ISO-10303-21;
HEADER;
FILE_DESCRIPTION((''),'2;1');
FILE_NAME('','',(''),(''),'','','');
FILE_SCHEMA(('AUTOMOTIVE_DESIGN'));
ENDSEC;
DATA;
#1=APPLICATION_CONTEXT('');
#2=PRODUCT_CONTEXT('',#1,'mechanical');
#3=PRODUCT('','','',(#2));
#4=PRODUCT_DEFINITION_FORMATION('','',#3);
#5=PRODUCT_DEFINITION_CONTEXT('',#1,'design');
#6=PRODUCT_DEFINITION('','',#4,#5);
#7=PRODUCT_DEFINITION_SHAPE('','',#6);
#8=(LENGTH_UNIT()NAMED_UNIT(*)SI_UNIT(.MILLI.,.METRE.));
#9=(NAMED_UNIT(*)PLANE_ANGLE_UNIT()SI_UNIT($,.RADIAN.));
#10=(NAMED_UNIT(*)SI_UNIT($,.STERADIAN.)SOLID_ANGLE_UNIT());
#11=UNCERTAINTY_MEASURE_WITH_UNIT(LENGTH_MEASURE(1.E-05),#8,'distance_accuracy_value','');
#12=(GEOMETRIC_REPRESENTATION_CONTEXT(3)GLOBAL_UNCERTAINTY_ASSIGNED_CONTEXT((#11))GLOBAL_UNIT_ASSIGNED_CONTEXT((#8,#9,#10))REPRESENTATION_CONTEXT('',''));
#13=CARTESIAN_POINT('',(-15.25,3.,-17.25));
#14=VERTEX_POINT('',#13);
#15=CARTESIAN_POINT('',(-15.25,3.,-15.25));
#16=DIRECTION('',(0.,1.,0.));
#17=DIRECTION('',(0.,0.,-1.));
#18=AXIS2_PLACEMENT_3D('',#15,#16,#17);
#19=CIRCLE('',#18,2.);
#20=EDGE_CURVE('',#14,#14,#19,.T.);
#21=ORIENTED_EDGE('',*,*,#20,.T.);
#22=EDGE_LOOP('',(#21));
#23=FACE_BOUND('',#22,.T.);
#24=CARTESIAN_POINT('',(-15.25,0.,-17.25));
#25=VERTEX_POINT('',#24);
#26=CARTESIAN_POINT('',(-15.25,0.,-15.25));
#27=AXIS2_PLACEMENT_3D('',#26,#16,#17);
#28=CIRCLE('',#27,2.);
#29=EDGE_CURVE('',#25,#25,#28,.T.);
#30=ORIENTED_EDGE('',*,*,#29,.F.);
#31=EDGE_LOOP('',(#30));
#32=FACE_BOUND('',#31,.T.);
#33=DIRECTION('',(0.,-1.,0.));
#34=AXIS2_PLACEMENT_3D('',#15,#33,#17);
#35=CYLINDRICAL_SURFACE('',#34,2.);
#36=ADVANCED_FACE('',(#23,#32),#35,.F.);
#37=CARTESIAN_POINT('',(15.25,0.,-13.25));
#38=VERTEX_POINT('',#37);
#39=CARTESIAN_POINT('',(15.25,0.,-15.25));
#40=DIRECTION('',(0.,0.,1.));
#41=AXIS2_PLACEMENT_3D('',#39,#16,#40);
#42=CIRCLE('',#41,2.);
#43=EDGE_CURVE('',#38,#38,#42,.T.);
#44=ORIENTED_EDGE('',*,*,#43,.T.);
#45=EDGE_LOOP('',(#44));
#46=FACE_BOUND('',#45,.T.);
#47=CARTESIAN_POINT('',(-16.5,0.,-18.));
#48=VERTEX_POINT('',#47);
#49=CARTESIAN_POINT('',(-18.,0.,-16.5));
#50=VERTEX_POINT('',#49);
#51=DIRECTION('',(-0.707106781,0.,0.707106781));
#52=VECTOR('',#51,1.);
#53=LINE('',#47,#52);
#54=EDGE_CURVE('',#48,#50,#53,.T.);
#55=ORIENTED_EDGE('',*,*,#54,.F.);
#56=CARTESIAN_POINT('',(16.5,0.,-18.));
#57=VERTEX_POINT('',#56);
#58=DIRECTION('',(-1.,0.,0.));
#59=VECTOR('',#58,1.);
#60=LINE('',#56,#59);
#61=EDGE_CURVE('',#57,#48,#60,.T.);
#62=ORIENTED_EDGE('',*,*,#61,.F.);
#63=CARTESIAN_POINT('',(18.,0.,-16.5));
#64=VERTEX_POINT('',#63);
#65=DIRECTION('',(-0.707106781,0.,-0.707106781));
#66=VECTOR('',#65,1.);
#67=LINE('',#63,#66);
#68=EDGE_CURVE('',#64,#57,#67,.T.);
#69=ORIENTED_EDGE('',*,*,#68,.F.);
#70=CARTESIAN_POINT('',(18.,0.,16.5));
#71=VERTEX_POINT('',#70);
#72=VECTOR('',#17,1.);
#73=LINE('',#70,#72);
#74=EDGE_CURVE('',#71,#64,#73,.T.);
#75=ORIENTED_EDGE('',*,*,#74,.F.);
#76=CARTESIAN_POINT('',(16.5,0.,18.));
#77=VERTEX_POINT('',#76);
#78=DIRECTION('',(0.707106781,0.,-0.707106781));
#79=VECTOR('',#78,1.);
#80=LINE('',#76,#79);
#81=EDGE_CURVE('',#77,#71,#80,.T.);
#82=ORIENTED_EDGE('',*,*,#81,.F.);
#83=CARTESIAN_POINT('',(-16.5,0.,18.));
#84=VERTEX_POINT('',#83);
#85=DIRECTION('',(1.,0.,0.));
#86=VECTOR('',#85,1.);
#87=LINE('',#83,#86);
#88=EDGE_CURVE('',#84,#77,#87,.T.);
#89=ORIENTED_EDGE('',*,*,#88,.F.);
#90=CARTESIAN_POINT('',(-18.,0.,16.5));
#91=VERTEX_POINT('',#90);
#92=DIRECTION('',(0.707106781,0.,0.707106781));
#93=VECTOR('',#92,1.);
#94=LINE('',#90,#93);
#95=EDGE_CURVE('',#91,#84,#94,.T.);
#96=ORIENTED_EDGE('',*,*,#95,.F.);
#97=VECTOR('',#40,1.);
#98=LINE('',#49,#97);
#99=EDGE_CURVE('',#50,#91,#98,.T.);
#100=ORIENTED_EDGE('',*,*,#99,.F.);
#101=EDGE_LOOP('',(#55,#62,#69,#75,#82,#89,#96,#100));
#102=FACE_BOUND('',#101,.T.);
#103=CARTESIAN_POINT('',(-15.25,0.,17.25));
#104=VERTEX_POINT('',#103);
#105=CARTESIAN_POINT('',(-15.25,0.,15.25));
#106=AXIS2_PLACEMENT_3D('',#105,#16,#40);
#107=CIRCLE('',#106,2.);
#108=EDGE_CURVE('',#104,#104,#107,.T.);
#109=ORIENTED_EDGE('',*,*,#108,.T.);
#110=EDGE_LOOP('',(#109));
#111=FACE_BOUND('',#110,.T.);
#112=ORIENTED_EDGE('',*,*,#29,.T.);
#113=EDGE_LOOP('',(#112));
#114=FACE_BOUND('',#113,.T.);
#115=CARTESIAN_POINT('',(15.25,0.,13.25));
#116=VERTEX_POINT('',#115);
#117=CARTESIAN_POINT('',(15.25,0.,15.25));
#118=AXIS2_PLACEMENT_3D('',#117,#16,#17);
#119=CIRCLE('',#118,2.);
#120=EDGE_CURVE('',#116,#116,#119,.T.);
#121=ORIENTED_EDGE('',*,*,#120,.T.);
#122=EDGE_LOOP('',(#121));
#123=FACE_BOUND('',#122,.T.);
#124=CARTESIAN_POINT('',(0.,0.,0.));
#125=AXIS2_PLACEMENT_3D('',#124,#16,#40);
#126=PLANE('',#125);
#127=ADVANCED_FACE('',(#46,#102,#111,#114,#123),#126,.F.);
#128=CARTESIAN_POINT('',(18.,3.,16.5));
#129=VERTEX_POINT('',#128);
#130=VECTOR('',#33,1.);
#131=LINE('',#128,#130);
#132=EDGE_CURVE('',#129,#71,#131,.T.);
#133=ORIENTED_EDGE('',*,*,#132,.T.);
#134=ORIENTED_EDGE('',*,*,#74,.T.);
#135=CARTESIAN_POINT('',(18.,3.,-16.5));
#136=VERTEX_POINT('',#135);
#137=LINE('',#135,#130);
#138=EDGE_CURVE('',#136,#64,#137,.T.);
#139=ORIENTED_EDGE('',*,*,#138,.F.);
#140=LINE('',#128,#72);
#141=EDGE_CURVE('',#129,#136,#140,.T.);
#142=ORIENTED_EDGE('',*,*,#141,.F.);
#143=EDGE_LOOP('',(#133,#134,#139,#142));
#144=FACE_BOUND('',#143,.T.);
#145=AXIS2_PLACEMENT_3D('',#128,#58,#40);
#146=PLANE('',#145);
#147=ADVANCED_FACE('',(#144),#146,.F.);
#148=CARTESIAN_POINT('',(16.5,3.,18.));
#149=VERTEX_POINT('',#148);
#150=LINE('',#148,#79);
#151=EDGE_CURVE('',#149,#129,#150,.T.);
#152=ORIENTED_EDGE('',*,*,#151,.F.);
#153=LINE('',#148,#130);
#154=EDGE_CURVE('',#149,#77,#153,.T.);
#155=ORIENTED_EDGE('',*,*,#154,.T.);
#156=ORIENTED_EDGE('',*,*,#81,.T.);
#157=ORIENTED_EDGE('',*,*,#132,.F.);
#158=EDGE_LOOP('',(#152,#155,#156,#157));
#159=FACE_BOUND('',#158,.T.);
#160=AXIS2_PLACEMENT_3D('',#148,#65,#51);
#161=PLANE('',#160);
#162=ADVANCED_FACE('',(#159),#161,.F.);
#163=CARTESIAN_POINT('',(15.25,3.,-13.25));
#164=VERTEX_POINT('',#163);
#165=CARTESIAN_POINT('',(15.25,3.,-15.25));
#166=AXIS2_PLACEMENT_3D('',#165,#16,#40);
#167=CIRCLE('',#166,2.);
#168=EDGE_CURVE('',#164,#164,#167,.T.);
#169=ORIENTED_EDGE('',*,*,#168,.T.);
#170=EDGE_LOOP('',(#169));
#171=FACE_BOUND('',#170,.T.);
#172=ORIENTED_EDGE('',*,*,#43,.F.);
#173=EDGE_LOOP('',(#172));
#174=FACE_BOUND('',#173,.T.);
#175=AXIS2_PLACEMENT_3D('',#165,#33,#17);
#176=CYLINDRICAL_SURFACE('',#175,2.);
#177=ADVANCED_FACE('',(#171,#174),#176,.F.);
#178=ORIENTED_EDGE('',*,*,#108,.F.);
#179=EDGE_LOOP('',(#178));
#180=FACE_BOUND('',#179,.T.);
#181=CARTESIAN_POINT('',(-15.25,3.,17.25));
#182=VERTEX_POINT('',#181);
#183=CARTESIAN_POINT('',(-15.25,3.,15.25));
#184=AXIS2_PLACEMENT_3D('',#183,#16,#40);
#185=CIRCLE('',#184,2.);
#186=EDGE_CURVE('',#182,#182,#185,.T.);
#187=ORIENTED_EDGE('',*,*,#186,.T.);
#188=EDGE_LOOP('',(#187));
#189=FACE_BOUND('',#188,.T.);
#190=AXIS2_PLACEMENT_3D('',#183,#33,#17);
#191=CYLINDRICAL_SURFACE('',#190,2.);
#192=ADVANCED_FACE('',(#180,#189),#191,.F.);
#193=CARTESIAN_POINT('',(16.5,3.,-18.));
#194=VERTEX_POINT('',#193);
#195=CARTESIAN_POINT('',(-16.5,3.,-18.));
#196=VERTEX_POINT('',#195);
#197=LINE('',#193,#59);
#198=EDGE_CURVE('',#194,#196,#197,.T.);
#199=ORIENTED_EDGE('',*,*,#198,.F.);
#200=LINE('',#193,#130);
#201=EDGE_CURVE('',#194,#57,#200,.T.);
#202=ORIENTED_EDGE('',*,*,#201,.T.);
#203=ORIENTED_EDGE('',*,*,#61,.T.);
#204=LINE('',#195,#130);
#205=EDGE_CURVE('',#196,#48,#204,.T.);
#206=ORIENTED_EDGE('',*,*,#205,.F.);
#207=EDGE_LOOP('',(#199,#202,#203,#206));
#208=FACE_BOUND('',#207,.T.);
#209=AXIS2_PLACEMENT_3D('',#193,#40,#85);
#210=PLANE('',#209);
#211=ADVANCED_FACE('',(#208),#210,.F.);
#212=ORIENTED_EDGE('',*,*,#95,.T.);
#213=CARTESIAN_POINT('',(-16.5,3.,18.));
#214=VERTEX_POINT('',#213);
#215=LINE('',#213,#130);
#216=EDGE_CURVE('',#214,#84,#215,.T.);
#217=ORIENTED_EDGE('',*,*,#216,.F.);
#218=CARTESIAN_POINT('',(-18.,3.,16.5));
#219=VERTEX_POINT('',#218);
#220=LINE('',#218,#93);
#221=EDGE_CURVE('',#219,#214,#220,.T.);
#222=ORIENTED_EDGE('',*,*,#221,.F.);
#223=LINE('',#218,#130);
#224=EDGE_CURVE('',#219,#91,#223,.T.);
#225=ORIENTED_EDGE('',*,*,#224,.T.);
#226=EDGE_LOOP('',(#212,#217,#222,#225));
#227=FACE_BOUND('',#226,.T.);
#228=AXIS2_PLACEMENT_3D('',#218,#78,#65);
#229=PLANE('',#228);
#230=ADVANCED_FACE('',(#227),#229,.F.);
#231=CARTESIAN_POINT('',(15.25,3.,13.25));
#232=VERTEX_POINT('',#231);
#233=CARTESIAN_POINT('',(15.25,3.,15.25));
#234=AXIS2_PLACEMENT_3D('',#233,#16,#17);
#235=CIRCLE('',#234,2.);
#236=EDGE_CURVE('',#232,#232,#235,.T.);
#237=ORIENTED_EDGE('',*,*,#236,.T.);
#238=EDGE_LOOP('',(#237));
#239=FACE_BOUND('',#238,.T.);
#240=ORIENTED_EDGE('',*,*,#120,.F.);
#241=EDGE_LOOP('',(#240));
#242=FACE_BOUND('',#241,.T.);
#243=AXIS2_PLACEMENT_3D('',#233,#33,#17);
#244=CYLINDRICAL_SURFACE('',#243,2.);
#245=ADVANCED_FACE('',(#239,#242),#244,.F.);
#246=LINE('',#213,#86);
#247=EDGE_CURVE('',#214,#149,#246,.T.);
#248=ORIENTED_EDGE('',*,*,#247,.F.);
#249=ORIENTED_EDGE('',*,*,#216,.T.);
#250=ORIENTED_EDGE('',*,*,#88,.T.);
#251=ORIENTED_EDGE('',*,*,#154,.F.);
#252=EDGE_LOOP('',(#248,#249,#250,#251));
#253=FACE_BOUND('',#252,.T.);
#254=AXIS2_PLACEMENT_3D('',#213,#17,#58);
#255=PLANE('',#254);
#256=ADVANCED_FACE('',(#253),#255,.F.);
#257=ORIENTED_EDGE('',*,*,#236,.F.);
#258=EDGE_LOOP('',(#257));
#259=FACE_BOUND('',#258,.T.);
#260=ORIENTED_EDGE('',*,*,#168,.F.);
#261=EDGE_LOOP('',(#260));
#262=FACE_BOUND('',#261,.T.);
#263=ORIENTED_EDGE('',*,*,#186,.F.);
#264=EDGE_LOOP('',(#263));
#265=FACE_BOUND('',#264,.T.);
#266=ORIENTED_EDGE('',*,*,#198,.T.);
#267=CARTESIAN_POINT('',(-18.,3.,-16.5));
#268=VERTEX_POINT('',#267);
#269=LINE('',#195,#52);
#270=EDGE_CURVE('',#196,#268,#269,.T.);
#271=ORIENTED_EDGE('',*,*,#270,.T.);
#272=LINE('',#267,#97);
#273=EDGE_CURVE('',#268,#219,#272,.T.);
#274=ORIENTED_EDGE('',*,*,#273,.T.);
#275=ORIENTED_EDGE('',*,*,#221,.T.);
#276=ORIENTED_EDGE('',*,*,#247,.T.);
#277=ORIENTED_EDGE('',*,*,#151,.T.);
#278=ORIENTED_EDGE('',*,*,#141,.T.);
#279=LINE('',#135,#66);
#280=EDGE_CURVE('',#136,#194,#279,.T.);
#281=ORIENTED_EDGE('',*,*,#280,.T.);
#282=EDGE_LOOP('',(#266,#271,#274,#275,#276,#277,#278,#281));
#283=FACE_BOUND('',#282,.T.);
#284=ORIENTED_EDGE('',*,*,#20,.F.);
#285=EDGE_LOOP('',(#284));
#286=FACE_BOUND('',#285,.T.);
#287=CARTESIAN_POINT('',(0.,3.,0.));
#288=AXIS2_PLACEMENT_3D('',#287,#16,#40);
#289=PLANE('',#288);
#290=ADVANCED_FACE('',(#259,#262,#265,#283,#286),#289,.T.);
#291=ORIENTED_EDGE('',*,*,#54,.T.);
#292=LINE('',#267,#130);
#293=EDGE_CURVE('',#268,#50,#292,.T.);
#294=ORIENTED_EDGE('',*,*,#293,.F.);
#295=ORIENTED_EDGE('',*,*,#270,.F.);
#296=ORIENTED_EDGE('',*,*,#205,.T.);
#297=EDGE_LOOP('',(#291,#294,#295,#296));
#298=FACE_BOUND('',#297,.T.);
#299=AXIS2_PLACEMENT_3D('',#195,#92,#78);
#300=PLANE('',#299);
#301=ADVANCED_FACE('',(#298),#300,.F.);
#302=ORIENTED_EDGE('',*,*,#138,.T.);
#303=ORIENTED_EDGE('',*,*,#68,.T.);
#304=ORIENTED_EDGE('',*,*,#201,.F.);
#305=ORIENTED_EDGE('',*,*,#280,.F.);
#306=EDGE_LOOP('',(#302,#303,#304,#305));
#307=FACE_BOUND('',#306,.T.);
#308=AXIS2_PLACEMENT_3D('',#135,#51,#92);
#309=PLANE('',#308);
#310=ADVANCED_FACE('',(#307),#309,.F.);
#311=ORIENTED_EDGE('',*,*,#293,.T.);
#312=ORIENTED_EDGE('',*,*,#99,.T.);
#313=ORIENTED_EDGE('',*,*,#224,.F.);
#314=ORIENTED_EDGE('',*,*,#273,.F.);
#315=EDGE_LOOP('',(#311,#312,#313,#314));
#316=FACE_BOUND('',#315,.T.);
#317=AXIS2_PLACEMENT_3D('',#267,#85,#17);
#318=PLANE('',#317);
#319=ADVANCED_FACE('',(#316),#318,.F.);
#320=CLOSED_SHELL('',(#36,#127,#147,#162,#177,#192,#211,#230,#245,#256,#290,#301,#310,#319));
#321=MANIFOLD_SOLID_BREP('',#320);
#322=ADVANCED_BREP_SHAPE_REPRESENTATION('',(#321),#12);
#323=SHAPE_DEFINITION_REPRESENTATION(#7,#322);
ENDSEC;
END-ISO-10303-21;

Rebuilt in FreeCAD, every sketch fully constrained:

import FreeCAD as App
import Part
import Sketcher
Q = App.Units.Quantity

doc = App.newDocument("Part")
params = doc.addObject("Spreadsheet::Sheet", "Params")
for row, (alias, value) in enumerate([
    ("sketch1_diameter", "4 mm"),
    ("sketch1_width", "33 mm"),
    ("pad1_length", "3 mm"),
], start=1):
    params.set(f"A{row}", alias)
    params.set(f"B{row}", "=" + value)
    params.setAlias(f"B{row}", alias)

body = doc.addObject("PartDesign::Body", "Body")

# Sketch on XZ plane
sketch1 = body.newObject("Sketcher::SketchObject", "Sketch")
sketch1.AttachmentSupport = (doc.getObject("XZ_Plane"), [""])
sketch1.MapMode = "FlatFace"
sketch1.addGeometry([
    Part.LineSegment(App.Vector(-16.5, 18, 0), App.Vector(16.5, 18, 0)),  # 0
    Part.LineSegment(App.Vector(16.5, 18, 0), App.Vector(18, 16.5, 0)),  # 1
    Part.LineSegment(App.Vector(18, 16.5, 0), App.Vector(18, -16.5, 0)),  # 2
    Part.LineSegment(App.Vector(18, -16.5, 0), App.Vector(16.5, -18, 0)),  # 3
    Part.LineSegment(App.Vector(16.5, -18, 0), App.Vector(-16.5, -18, 0)),  # 4
    Part.LineSegment(App.Vector(-16.5, -18, 0), App.Vector(-18, -16.5, 0)),  # 5
    Part.LineSegment(App.Vector(-18, -16.5, 0), App.Vector(-18, 16.5, 0)),  # 6
    Part.LineSegment(App.Vector(-18, 16.5, 0), App.Vector(-16.5, 18, 0)),  # 7
    Part.Circle(App.Vector(-15.2, 15.2, 0), App.Vector(0, 0, 1), 2),  # 8
    Part.Circle(App.Vector(15.2, 15.2, 0), App.Vector(0, 0, 1), 2),  # 9
    Part.Circle(App.Vector(-15.2, -15.2, 0), App.Vector(0, 0, 1), 2),  # 10
    Part.Circle(App.Vector(15.2, -15.2, 0), App.Vector(0, 0, 1), 2),  # 11
], False)
sketch1.addConstraint([
    Sketcher.Constraint("Coincident", 0, 2, 1, 1),
    Sketcher.Constraint("Coincident", 1, 2, 2, 1),
    Sketcher.Constraint("Coincident", 2, 2, 3, 1),
    Sketcher.Constraint("Coincident", 3, 2, 4, 1),
    Sketcher.Constraint("Coincident", 4, 2, 5, 1),
    Sketcher.Constraint("Coincident", 5, 2, 6, 1),
    Sketcher.Constraint("Coincident", 6, 2, 7, 1),
    Sketcher.Constraint("Coincident", 7, 2, 0, 1),
    Sketcher.Constraint("Horizontal", 0),
    Sketcher.Constraint("Vertical", 2),
    Sketcher.Constraint("Horizontal", 4),
    Sketcher.Constraint("Vertical", 6),
    Sketcher.Constraint("Equal", 8, 9),
    Sketcher.Constraint("Equal", 9, 10),
    Sketcher.Constraint("Equal", 10, 11),
    Sketcher.Constraint("Symmetric", 9, 3, 10, 3, -1, 1),
    Sketcher.Constraint("Symmetric", 8, 3, 11, 3, -1, 1),
    Sketcher.Constraint("Symmetric", 0, 2, 4, 2, -1, 1),
    Sketcher.Constraint("Symmetric", 1, 2, 5, 2, -1, 1),
    Sketcher.Constraint("Symmetric", 8, 3, 9, 3, -2),
    Sketcher.Constraint("Perpendicular", 1, 3),
    Sketcher.Constraint("Perpendicular", 5, 7),
    Sketcher.Constraint("Horizontal", 2, 2, 5, 2),
    Sketcher.Constraint("Horizontal", 1, 2, 6, 2),
    Sketcher.Constraint("Vertical", 0, 2, 3, 2),
    Sketcher.Constraint("Equal", 4, 2),
    Sketcher.Constraint("Diameter", 8, Q("4 mm")),
    Sketcher.Constraint("DistanceX", 0, 1, 0, 2, Q("33 mm")),
    Sketcher.Constraint("DistanceY", -1, 1, 0, 2, Q("18 mm")),
    Sketcher.Constraint("DistanceX", 8, 3, 9, 3, Q("30.5 mm")),
    Sketcher.Constraint("DistanceY", 10, 3, 8, 3, Q("30.5 mm")),
])
sketch1.setExpression("Constraints[26]", "Params.sketch1_diameter")
sketch1.setExpression("Constraints[27]", "Params.sketch1_width")
pad1 = body.newObject("PartDesign::Pad", "Pad")
pad1.Profile = sketch1
pad1.setExpression("Length", "Params.pad1_length")
pad1.Reversed = True

doc.recompute()
